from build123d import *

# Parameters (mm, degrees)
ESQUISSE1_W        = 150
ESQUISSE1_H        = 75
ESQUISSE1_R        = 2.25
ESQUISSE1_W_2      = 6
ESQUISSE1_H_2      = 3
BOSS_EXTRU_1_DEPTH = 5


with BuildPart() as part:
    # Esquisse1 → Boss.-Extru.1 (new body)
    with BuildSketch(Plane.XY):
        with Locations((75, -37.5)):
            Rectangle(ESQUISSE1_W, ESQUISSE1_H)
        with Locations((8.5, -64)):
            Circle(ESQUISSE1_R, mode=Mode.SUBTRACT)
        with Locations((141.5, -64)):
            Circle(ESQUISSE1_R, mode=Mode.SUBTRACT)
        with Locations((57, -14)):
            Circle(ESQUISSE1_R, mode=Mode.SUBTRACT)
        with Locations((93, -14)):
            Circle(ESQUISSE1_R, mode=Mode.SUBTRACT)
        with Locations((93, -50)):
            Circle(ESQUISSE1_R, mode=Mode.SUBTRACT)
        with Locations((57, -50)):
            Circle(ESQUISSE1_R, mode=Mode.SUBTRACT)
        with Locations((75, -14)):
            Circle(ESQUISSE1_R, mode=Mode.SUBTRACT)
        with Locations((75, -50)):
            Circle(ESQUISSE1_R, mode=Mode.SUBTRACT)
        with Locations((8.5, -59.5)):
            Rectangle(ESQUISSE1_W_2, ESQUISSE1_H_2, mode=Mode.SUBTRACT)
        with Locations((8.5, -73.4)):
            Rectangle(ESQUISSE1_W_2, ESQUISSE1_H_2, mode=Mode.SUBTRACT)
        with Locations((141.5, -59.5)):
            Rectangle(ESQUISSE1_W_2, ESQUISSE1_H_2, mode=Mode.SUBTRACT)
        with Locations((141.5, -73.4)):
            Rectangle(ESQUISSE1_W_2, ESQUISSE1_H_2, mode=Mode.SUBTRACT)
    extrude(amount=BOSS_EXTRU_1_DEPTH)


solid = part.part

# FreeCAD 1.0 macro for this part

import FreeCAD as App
import Part
import Sketcher
from FreeCAD import Vector


def add_polygon(sketch, points):
    """Adds a closed chain of lines whose ends are joined by coincident constraints."""
    first, n = sketch.GeometryCount, len(points)
    for a, b in zip(points, points[1:] + points[:1]):
        sketch.addGeometry(Part.LineSegment(App.Vector(*a, 0), App.Vector(*b, 0)), False)
    for i in range(n):
        sketch.addConstraint(Sketcher.Constraint("Coincident", first + i, 2, first + (i + 1) % n, 1))

doc = App.newDocument("Part")
body = doc.addObject("PartDesign::Body", "Body")

# Sketch on XY plane
sketch1 = doc.addObject("Sketcher::SketchObject", "Sketch")
body.addObject(sketch1)
sketch1.AttachmentSupport = (doc.XY_Plane, [""])
sketch1.MapMode = "FlatFace"
add_polygon(sketch1, [(0, 0), (0, -75), (150, -75), (150, 0)])  # lines 0-3
add_polygon(sketch1, [(11.5, -74.9), (5.5, -74.9), (5.5, -71.9), (11.5, -71.9)])  # lines 4-7
sketch1.addGeometry(Part.Circle(Vector(8.5, -64, 0), Vector(0, 0, 1), 2.25), False)  # 8
add_polygon(sketch1, [(11.5, -61), (5.5, -61), (5.5, -58), (11.5, -58)])  # lines 9-12
sketch1.addGeometry(Part.Circle(Vector(57, -50, 0), Vector(0, 0, 1), 2.25), False)  # 13
add_polygon(sketch1, [(144.5, -74.9), (138.5, -74.9), (138.5, -71.9), (144.5, -71.9)])  # lines 14-17
sketch1.addGeometry(Part.Circle(Vector(141.5, -64, 0), Vector(0, 0, 1), 2.25), False)  # 18
add_polygon(sketch1, [(144.5, -61), (138.5, -61), (138.5, -58), (144.5, -58)])  # lines 19-22
sketch1.addGeometry(Part.Circle(Vector(75, -50, 0), Vector(0, 0, 1), 2.25), False)  # 23
sketch1.addGeometry(Part.Circle(Vector(93, -50, 0), Vector(0, 0, 1), 2.25), False)  # 24
sketch1.addGeometry(Part.Circle(Vector(57, -14, 0), Vector(0, 0, 1), 2.25), False)  # 25
sketch1.addGeometry(Part.Circle(Vector(75, -14, 0), Vector(0, 0, 1), 2.25), False)  # 26
sketch1.addGeometry(Part.Circle(Vector(93, -14, 0), Vector(0, 0, 1), 2.25), False)  # 27
sketch1.addConstraint([
    Sketcher.Constraint("Vertical", 0),
    Sketcher.Constraint("Horizontal", 1),
    Sketcher.Constraint("Vertical", 2),
    Sketcher.Constraint("Horizontal", 3),
    Sketcher.Constraint("Horizontal", 4),
    Sketcher.Constraint("Vertical", 5),
    Sketcher.Constraint("Horizontal", 6),
    Sketcher.Constraint("Vertical", 7),
    Sketcher.Constraint("Horizontal", 9),
    Sketcher.Constraint("Vertical", 10),
    Sketcher.Constraint("Horizontal", 11),
    Sketcher.Constraint("Vertical", 12),
    Sketcher.Constraint("Horizontal", 14),
    Sketcher.Constraint("Vertical", 15),
    Sketcher.Constraint("Horizontal", 16),
    Sketcher.Constraint("Vertical", 17),
    Sketcher.Constraint("Horizontal", 19),
    Sketcher.Constraint("Vertical", 20),
    Sketcher.Constraint("Horizontal", 21),
    Sketcher.Constraint("Vertical", 22),
    Sketcher.Constraint("Coincident", 3, 2, -1, 1),
    Sketcher.Constraint("Equal", 8, 13),
    Sketcher.Constraint("Equal", 13, 18),
    Sketcher.Constraint("Equal", 18, 23),
    Sketcher.Constraint("Equal", 23, 24),
    Sketcher.Constraint("Equal", 24, 25),
    Sketcher.Constraint("Equal", 25, 26),
    Sketcher.Constraint("Equal", 26, 27),
    Sketcher.Constraint("Horizontal", 8, 3, 18, 3),
    Sketcher.Constraint("Horizontal", 13, 3, 23, 3),
    Sketcher.Constraint("Horizontal", 23, 3, 24, 3),
    Sketcher.Constraint("Horizontal", 25, 3, 26, 3),
    Sketcher.Constraint("Horizontal", 26, 3, 27, 3),
    Sketcher.Constraint("Horizontal", 7, 2, 14, 2),
    Sketcher.Constraint("Horizontal", 6, 2, 15, 2),
    Sketcher.Constraint("Horizontal", 12, 2, 19, 2),
    Sketcher.Constraint("Horizontal", 11, 2, 20, 2),
    Sketcher.Constraint("Vertical", 13, 3, 25, 3),
    Sketcher.Constraint("Vertical", 23, 3, 26, 3),
    Sketcher.Constraint("Vertical", 24, 3, 27, 3),
    Sketcher.Constraint("Vertical", 5, 2, 9, 2),
    Sketcher.Constraint("Vertical", 7, 2, 11, 2),
    Sketcher.Constraint("Vertical", 15, 2, 19, 2),
    Sketcher.Constraint("Vertical", 17, 2, 21, 2),
    Sketcher.Constraint("Equal", 11, 14),
    Sketcher.Constraint("Equal", 7, 10),
    Sketcher.Constraint("Diameter", 8, 4.5),
    Sketcher.Constraint("DistanceX", 1, 1, 1, 2, 150.0),
    Sketcher.Constraint("DistanceX", 4, 2, 4, 1, 6.0),
    Sketcher.Constraint("DistanceY", 0, 2, 0, 1, 75.0),
    Sketcher.Constraint("DistanceY", 5, 1, 5, 2, 3.0),
    Sketcher.Constraint("DistanceY", 8, 3, -1, 1, 64.0),
    Sketcher.Constraint("DistanceX", -1, 1, 13, 3, 57.0),
    Sketcher.Constraint("DistanceY", 13, 3, -1, 1, 50.0),
    Sketcher.Constraint("DistanceX", -1, 1, 23, 3, 75.0),
    Sketcher.Constraint("DistanceX", -1, 1, 24, 3, 93.0),
    Sketcher.Constraint("DistanceY", 25, 3, -1, 1, 14.0),
    Sketcher.Constraint("DistanceY", 9, 2, -1, 1, 61.0),
    Sketcher.Constraint("DistanceX", 8, 3, 18, 3, 133.0),
    Sketcher.Constraint("DistanceX", 4, 2, 8, 3, 3.0),
    Sketcher.Constraint("DistanceX", 14, 2, 18, 3, 3.0),
    Sketcher.Constraint("DistanceX", -1, 1, 8, 3, 8.5),
    Sketcher.Constraint("DistanceY", 4, 2, -1, 1, 74.9),
])
pad1 = doc.addObject("PartDesign::Pad", "Pad")
body.addObject(pad1)
pad1.Profile = sketch1
pad1.Length = 5

doc.recompute()
